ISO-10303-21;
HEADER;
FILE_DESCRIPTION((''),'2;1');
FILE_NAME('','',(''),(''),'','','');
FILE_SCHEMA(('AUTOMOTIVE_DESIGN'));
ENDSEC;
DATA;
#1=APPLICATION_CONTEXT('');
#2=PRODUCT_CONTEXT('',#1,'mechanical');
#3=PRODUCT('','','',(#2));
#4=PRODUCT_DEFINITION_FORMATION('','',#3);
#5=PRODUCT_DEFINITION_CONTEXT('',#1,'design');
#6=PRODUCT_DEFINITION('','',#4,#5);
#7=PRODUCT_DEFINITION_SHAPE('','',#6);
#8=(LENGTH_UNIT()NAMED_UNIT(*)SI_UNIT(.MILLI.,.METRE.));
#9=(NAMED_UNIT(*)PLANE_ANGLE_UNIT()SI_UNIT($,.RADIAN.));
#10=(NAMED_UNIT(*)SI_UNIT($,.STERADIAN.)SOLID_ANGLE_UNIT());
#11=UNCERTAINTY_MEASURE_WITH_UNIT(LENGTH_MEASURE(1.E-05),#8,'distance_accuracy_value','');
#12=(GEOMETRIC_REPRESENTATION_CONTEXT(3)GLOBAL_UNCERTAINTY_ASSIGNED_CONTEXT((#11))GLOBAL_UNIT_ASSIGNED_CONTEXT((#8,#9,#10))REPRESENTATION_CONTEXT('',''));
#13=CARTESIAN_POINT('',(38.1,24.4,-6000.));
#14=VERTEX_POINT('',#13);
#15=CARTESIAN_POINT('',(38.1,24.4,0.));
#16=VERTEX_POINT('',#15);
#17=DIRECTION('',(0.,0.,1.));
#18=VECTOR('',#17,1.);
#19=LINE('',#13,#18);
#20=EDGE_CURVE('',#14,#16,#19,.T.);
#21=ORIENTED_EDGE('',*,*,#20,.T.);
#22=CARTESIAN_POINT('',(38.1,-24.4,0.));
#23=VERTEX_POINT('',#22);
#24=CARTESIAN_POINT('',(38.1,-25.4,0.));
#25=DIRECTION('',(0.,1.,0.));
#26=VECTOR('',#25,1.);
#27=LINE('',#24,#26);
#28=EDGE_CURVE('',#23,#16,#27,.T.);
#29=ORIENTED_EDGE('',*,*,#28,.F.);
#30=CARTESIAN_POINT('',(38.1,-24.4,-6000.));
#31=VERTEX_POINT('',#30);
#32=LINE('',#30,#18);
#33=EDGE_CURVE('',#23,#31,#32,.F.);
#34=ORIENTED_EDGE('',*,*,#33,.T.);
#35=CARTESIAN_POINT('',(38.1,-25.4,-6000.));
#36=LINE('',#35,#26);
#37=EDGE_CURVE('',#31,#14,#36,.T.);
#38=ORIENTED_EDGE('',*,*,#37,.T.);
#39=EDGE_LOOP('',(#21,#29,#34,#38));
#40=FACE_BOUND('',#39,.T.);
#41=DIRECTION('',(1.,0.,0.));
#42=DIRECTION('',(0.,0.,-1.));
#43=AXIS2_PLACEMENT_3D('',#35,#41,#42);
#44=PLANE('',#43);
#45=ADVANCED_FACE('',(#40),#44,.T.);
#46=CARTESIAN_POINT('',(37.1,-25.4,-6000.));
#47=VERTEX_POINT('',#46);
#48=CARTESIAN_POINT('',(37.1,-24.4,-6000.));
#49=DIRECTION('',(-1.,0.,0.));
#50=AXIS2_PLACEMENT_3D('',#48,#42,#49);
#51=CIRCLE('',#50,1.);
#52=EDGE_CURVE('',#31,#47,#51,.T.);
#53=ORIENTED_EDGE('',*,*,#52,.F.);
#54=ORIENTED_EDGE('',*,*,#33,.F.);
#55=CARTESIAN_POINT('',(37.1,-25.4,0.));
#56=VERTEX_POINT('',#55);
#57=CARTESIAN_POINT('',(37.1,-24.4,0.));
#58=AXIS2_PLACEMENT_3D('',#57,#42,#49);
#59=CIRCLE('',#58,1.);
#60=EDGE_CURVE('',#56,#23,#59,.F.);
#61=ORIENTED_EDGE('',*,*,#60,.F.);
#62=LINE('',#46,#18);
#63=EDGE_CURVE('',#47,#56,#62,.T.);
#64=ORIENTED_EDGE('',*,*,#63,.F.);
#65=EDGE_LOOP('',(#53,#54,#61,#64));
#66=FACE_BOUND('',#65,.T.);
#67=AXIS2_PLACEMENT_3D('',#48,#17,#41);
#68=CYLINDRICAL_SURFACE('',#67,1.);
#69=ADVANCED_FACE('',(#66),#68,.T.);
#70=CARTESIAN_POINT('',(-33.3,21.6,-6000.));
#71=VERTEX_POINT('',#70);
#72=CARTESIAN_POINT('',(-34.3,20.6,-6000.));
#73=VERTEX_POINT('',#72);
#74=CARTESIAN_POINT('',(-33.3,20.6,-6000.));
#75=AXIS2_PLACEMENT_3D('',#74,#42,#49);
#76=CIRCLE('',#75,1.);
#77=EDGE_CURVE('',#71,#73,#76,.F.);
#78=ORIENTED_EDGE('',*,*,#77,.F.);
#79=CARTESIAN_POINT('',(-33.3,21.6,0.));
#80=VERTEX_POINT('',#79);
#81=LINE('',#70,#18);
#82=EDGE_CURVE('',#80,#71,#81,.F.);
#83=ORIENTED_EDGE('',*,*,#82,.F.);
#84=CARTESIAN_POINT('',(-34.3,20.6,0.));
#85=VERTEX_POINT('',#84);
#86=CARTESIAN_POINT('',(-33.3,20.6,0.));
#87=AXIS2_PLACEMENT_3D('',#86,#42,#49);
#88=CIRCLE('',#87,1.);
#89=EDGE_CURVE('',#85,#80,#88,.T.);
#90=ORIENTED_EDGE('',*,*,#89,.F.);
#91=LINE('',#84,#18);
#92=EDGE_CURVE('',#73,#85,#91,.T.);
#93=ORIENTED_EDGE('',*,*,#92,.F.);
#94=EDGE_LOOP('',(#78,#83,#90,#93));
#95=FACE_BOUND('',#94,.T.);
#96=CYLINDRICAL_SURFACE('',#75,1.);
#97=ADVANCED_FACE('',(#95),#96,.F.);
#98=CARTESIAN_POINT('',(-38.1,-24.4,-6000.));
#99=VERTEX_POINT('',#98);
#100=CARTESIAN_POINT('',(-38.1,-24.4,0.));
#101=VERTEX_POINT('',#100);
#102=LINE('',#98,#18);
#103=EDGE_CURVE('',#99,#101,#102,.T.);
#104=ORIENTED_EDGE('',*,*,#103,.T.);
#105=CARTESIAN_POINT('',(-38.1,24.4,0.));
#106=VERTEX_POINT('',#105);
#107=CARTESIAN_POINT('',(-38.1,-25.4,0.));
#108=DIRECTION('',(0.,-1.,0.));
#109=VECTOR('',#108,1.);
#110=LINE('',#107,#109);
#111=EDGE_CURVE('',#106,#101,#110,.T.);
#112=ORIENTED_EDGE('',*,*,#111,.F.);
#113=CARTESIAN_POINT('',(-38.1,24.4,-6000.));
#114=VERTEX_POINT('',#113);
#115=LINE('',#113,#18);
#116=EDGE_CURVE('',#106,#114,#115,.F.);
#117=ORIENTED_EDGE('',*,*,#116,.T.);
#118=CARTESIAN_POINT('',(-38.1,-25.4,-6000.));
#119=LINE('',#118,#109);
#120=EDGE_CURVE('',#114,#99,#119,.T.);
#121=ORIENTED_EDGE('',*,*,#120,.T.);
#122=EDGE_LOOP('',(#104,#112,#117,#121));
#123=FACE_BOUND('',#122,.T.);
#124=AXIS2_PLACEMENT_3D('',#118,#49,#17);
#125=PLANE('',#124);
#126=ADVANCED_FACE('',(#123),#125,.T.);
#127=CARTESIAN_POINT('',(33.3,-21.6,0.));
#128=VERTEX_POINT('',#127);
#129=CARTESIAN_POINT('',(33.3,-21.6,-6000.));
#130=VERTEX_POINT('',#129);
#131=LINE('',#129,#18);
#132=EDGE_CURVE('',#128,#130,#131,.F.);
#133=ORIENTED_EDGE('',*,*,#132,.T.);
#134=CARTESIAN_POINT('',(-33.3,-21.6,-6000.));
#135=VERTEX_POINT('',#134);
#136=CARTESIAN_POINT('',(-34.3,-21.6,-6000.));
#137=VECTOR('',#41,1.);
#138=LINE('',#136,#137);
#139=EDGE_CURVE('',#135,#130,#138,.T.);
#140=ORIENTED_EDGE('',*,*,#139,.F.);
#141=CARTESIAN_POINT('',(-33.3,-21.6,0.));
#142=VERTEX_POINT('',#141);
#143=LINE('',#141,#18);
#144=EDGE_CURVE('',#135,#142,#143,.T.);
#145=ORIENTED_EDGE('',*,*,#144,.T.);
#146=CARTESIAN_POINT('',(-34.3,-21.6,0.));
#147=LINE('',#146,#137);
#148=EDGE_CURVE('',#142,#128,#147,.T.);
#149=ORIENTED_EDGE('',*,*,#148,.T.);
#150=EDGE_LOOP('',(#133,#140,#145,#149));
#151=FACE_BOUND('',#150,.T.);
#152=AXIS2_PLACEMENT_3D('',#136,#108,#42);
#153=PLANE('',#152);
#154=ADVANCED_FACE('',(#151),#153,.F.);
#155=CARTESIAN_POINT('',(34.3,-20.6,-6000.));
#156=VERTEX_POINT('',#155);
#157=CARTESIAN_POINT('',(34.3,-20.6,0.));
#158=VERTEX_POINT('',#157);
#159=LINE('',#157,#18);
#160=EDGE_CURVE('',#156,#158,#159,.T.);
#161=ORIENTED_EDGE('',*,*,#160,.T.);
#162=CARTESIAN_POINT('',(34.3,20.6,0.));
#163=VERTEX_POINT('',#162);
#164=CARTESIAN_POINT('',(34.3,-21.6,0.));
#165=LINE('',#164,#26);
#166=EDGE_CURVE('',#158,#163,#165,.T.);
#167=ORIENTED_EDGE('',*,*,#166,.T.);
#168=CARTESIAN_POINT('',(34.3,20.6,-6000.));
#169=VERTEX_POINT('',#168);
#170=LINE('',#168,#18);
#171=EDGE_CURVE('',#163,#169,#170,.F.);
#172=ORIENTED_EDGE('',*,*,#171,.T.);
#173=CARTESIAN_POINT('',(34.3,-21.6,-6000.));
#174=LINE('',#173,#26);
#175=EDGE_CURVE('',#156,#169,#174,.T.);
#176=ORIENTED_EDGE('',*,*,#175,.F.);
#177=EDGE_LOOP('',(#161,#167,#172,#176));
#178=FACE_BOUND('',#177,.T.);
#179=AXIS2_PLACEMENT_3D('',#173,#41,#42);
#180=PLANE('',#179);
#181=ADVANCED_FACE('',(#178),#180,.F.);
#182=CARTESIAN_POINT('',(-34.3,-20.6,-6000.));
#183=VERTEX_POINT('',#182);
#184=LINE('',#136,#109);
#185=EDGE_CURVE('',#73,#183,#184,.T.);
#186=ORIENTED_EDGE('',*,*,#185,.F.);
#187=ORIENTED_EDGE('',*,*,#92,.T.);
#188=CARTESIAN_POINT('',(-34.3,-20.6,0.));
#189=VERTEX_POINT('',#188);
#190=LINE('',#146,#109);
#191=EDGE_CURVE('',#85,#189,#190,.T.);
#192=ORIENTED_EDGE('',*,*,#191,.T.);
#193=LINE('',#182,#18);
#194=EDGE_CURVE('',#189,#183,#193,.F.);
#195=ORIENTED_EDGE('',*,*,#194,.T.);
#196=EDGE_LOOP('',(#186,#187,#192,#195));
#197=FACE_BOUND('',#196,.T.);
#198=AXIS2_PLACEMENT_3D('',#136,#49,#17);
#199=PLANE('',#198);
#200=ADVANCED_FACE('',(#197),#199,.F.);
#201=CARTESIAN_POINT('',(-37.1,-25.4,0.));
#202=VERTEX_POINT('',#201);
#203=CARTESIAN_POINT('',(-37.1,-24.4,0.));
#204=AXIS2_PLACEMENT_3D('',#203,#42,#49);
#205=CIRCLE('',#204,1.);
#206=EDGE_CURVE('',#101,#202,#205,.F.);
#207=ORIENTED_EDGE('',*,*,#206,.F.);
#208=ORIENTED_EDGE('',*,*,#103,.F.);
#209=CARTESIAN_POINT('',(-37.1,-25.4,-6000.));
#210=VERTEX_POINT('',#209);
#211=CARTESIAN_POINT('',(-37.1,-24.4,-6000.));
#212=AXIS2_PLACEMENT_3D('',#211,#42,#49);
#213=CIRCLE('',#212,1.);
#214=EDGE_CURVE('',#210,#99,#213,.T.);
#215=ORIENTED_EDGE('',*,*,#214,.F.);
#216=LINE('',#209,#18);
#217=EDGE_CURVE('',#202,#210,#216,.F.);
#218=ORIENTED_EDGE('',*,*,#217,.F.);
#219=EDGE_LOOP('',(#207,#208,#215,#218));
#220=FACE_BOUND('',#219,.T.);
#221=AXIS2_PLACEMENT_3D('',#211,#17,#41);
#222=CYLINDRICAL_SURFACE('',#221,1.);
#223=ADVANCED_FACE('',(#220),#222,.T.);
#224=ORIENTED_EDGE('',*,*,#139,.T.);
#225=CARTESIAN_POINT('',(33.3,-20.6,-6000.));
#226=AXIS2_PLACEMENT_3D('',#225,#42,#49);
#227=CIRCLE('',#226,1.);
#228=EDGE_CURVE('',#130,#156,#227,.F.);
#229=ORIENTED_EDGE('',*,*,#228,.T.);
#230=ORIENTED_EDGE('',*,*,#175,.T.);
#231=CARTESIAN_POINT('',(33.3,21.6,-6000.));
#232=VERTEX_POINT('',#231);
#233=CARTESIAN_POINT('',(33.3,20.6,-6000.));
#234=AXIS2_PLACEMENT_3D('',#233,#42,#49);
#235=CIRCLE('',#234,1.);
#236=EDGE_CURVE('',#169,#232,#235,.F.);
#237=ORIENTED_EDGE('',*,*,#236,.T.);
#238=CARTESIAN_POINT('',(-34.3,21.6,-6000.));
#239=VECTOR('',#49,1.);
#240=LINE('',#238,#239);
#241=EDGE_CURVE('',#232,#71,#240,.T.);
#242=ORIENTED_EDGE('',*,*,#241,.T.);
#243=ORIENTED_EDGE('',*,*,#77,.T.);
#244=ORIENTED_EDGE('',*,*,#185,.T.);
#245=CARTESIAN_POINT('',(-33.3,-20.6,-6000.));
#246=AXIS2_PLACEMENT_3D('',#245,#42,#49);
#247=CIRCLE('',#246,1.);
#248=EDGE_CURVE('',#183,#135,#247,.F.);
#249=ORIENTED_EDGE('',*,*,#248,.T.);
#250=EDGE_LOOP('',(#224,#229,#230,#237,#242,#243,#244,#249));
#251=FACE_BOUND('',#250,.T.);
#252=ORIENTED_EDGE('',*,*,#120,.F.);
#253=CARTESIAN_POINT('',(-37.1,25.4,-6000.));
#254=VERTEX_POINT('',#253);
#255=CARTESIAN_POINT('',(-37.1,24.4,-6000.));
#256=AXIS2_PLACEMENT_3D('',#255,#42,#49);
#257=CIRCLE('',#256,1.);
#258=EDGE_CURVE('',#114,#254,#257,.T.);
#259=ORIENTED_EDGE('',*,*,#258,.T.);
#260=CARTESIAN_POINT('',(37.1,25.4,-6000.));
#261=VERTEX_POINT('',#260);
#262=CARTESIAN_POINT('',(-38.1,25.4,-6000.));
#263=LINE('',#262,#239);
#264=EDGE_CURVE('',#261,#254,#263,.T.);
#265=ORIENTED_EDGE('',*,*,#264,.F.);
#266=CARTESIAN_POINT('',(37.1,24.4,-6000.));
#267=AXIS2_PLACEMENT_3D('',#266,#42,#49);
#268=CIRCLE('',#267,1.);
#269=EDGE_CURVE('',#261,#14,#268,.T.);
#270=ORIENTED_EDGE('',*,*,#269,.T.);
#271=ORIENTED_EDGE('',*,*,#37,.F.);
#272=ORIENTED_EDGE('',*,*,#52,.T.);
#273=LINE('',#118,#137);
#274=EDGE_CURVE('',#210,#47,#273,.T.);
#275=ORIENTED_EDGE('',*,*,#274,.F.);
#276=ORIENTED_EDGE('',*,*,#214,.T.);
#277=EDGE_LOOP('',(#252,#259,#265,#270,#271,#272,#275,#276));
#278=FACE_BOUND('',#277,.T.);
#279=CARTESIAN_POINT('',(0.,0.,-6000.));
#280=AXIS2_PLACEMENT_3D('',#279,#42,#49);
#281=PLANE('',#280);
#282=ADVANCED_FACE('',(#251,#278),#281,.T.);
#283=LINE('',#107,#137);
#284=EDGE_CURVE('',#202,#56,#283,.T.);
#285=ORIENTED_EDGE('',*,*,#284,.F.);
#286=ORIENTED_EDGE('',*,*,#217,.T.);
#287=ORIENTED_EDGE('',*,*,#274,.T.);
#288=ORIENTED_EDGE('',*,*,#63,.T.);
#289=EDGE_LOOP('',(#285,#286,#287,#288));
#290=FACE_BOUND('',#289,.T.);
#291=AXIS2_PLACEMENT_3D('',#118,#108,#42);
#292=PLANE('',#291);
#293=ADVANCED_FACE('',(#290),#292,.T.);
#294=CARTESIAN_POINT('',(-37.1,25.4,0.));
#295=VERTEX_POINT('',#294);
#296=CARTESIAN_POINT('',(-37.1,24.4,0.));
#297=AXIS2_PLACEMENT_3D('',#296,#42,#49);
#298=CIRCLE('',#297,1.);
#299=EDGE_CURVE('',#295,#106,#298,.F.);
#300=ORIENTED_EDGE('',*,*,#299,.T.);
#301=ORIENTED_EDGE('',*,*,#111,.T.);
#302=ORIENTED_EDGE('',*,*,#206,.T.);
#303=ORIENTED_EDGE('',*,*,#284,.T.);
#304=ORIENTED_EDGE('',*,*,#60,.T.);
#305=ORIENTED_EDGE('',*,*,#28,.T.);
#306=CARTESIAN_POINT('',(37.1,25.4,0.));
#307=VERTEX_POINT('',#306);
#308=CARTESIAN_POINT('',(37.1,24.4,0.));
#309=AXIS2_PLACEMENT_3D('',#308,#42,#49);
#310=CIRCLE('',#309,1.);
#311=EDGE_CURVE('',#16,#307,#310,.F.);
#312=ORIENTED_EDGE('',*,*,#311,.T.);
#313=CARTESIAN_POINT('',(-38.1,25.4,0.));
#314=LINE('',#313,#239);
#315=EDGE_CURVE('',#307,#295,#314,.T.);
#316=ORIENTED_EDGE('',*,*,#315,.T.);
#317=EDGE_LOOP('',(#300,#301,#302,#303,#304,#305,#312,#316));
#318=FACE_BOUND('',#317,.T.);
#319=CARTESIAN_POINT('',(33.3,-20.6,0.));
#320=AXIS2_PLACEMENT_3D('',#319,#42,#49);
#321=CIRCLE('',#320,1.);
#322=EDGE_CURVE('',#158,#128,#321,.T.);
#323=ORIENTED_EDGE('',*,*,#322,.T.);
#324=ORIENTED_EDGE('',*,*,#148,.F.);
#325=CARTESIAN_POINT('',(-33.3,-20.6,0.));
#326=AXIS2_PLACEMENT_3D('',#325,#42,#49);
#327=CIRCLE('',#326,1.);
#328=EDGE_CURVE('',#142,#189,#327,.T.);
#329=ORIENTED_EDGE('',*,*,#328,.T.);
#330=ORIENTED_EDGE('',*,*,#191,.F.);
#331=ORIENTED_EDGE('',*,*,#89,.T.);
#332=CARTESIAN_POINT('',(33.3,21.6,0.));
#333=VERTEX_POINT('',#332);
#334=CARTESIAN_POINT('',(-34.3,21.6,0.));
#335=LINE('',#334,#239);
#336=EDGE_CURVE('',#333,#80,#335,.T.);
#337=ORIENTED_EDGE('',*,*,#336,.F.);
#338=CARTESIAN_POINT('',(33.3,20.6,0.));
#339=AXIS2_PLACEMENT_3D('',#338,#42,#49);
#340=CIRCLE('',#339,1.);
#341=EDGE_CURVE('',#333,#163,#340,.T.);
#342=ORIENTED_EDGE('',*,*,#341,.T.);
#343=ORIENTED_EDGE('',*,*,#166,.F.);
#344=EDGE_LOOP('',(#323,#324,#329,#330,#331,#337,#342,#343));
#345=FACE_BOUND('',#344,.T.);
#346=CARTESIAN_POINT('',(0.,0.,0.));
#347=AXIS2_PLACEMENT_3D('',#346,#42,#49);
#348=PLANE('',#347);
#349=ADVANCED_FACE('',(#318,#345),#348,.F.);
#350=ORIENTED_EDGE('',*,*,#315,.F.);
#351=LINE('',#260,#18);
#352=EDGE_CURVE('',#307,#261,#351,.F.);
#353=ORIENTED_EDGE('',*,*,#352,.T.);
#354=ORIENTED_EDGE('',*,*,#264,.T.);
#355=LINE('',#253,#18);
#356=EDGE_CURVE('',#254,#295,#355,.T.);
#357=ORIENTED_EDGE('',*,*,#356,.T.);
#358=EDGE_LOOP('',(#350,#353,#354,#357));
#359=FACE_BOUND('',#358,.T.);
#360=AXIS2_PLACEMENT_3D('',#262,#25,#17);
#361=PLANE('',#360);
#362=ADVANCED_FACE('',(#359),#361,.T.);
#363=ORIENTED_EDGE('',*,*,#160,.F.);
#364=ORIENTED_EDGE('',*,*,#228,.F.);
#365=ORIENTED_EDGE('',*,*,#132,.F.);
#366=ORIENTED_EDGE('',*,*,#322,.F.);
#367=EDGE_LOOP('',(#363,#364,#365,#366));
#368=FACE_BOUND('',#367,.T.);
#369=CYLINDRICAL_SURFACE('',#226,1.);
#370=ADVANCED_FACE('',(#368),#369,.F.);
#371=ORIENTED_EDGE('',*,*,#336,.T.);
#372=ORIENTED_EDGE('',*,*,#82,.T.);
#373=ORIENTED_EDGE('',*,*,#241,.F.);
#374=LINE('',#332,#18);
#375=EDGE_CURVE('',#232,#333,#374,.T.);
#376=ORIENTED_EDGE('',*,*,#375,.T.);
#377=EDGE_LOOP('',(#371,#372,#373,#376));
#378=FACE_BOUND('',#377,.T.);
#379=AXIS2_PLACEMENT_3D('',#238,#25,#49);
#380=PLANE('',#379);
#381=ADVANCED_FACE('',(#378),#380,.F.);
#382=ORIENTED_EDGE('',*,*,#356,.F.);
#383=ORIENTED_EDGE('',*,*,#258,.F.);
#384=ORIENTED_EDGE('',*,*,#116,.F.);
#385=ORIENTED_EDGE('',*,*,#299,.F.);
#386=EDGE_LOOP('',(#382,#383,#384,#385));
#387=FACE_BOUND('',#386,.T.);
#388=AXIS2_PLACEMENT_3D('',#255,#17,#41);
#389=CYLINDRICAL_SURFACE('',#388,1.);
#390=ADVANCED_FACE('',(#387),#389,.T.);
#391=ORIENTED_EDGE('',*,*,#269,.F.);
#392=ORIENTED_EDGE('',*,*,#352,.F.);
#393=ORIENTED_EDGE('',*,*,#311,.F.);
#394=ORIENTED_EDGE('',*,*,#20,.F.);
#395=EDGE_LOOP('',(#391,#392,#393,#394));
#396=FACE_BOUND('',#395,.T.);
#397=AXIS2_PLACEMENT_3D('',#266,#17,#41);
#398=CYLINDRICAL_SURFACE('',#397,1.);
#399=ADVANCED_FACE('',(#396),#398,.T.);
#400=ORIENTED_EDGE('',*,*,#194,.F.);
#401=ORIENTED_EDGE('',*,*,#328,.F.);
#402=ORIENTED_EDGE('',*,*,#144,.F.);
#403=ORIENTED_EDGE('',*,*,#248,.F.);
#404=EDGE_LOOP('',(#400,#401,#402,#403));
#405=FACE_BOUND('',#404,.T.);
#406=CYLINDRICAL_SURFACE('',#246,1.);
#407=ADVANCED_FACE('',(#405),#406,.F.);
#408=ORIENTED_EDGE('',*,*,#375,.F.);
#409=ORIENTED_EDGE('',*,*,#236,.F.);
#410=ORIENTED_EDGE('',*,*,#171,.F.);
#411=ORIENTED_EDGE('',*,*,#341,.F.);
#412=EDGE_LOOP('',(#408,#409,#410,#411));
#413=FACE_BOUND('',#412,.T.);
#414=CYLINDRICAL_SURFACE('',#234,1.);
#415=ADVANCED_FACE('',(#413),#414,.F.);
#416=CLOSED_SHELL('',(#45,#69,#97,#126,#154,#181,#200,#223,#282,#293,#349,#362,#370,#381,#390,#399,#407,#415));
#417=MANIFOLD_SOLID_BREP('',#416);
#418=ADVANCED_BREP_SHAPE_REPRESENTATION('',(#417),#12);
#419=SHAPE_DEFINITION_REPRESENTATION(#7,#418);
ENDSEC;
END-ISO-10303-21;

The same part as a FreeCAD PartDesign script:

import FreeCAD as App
import Part
import Sketcher

V = App.Vector


def edges_at(feature, points):
    """Names of the edges that pass closest to the given points."""
    edges = feature.Shape.Edges
    near = lambda p: min(range(len(edges)), key=lambda i: edges[i].distToShape(Part.Vertex(*p))[0])
    return sorted({f"Edge{near(p) + 1}" for p in points})


def add_polygon(sketch, points):
    """Adds a closed chain of lines whose ends are joined by coincident constraints."""
    first, n = sketch.GeometryCount, len(points)
    for a, b in zip(points, points[1:] + points[:1]):
        sketch.addGeometry(Part.LineSegment(App.Vector(*a, 0), App.Vector(*b, 0)), False)
    for i in range(n):
        sketch.addConstraint(Sketcher.Constraint("Coincident", first + i, 2, first + (i + 1) % n, 1))

doc = App.newDocument("Part")
body = doc.addObject("PartDesign::Body", "Body")

# Sketch on XY plane
sketch1 = body.newObject("Sketcher::SketchObject", "Sketch")
sketch1.AttachmentSupport = (doc.getObject("XY_Plane"), [""])
sketch1.MapMode = "FlatFace"
add_polygon(sketch1, [(-38, 25), (-38, -25), (38, -25), (38, 25)])  # lines 0-3
add_polygon(sketch1, [(34, -22), (-34, -22), (-34, 22), (34, 22)])  # lines 4-7
sketch1.addConstraint([
    Sketcher.Constraint("Vertical", 0),
    Sketcher.Constraint("Horizontal", 1),
    Sketcher.Constraint("Vertical", 2),
    Sketcher.Constraint("Horizontal", 3),
    Sketcher.Constraint("Horizontal", 4),
    Sketcher.Constraint("Vertical", 5),
    Sketcher.Constraint("Horizontal", 6),
    Sketcher.Constraint("Vertical", 7),
    Sketcher.Constraint("Symmetric", 0, 2, 2, 2, -1, 1),
    Sketcher.Constraint("Symmetric", 4, 2, 6, 2, -1, 1),
    Sketcher.Constraint("DistanceX", 1, 1, 1, 2, 76.2),
    Sketcher.Constraint("DistanceX", 4, 2, 4, 1, 68.6),
    Sketcher.Constraint("DistanceY", 0, 2, 0, 1, 50.8),
    Sketcher.Constraint("DistanceY", 5, 1, 5, 2, 43.2),
])
pad1 = body.newObject("PartDesign::Pad", "Pad")
pad1.Profile = sketch1
pad1.Length = 6000
pad1.Reversed = True
doc.recompute()

fillet = body.newObject("PartDesign::Fillet", "Fillet")
fillet.Base = (pad1, edges_at(pad1, [
    (34.3, -21.6, -3000),
    (-34.3, -21.6, -3000),
    (-34.3, 21.6, -3000),
    (34.3, 21.6, -3000),
    (38.1, -25.4, -3000),
    (-38.1, -25.4, -3000),
    (-38.1, 25.4, -3000),
    (38.1, 25.4, -3000),
]))
fillet.Radius = 1

doc.recompute()
